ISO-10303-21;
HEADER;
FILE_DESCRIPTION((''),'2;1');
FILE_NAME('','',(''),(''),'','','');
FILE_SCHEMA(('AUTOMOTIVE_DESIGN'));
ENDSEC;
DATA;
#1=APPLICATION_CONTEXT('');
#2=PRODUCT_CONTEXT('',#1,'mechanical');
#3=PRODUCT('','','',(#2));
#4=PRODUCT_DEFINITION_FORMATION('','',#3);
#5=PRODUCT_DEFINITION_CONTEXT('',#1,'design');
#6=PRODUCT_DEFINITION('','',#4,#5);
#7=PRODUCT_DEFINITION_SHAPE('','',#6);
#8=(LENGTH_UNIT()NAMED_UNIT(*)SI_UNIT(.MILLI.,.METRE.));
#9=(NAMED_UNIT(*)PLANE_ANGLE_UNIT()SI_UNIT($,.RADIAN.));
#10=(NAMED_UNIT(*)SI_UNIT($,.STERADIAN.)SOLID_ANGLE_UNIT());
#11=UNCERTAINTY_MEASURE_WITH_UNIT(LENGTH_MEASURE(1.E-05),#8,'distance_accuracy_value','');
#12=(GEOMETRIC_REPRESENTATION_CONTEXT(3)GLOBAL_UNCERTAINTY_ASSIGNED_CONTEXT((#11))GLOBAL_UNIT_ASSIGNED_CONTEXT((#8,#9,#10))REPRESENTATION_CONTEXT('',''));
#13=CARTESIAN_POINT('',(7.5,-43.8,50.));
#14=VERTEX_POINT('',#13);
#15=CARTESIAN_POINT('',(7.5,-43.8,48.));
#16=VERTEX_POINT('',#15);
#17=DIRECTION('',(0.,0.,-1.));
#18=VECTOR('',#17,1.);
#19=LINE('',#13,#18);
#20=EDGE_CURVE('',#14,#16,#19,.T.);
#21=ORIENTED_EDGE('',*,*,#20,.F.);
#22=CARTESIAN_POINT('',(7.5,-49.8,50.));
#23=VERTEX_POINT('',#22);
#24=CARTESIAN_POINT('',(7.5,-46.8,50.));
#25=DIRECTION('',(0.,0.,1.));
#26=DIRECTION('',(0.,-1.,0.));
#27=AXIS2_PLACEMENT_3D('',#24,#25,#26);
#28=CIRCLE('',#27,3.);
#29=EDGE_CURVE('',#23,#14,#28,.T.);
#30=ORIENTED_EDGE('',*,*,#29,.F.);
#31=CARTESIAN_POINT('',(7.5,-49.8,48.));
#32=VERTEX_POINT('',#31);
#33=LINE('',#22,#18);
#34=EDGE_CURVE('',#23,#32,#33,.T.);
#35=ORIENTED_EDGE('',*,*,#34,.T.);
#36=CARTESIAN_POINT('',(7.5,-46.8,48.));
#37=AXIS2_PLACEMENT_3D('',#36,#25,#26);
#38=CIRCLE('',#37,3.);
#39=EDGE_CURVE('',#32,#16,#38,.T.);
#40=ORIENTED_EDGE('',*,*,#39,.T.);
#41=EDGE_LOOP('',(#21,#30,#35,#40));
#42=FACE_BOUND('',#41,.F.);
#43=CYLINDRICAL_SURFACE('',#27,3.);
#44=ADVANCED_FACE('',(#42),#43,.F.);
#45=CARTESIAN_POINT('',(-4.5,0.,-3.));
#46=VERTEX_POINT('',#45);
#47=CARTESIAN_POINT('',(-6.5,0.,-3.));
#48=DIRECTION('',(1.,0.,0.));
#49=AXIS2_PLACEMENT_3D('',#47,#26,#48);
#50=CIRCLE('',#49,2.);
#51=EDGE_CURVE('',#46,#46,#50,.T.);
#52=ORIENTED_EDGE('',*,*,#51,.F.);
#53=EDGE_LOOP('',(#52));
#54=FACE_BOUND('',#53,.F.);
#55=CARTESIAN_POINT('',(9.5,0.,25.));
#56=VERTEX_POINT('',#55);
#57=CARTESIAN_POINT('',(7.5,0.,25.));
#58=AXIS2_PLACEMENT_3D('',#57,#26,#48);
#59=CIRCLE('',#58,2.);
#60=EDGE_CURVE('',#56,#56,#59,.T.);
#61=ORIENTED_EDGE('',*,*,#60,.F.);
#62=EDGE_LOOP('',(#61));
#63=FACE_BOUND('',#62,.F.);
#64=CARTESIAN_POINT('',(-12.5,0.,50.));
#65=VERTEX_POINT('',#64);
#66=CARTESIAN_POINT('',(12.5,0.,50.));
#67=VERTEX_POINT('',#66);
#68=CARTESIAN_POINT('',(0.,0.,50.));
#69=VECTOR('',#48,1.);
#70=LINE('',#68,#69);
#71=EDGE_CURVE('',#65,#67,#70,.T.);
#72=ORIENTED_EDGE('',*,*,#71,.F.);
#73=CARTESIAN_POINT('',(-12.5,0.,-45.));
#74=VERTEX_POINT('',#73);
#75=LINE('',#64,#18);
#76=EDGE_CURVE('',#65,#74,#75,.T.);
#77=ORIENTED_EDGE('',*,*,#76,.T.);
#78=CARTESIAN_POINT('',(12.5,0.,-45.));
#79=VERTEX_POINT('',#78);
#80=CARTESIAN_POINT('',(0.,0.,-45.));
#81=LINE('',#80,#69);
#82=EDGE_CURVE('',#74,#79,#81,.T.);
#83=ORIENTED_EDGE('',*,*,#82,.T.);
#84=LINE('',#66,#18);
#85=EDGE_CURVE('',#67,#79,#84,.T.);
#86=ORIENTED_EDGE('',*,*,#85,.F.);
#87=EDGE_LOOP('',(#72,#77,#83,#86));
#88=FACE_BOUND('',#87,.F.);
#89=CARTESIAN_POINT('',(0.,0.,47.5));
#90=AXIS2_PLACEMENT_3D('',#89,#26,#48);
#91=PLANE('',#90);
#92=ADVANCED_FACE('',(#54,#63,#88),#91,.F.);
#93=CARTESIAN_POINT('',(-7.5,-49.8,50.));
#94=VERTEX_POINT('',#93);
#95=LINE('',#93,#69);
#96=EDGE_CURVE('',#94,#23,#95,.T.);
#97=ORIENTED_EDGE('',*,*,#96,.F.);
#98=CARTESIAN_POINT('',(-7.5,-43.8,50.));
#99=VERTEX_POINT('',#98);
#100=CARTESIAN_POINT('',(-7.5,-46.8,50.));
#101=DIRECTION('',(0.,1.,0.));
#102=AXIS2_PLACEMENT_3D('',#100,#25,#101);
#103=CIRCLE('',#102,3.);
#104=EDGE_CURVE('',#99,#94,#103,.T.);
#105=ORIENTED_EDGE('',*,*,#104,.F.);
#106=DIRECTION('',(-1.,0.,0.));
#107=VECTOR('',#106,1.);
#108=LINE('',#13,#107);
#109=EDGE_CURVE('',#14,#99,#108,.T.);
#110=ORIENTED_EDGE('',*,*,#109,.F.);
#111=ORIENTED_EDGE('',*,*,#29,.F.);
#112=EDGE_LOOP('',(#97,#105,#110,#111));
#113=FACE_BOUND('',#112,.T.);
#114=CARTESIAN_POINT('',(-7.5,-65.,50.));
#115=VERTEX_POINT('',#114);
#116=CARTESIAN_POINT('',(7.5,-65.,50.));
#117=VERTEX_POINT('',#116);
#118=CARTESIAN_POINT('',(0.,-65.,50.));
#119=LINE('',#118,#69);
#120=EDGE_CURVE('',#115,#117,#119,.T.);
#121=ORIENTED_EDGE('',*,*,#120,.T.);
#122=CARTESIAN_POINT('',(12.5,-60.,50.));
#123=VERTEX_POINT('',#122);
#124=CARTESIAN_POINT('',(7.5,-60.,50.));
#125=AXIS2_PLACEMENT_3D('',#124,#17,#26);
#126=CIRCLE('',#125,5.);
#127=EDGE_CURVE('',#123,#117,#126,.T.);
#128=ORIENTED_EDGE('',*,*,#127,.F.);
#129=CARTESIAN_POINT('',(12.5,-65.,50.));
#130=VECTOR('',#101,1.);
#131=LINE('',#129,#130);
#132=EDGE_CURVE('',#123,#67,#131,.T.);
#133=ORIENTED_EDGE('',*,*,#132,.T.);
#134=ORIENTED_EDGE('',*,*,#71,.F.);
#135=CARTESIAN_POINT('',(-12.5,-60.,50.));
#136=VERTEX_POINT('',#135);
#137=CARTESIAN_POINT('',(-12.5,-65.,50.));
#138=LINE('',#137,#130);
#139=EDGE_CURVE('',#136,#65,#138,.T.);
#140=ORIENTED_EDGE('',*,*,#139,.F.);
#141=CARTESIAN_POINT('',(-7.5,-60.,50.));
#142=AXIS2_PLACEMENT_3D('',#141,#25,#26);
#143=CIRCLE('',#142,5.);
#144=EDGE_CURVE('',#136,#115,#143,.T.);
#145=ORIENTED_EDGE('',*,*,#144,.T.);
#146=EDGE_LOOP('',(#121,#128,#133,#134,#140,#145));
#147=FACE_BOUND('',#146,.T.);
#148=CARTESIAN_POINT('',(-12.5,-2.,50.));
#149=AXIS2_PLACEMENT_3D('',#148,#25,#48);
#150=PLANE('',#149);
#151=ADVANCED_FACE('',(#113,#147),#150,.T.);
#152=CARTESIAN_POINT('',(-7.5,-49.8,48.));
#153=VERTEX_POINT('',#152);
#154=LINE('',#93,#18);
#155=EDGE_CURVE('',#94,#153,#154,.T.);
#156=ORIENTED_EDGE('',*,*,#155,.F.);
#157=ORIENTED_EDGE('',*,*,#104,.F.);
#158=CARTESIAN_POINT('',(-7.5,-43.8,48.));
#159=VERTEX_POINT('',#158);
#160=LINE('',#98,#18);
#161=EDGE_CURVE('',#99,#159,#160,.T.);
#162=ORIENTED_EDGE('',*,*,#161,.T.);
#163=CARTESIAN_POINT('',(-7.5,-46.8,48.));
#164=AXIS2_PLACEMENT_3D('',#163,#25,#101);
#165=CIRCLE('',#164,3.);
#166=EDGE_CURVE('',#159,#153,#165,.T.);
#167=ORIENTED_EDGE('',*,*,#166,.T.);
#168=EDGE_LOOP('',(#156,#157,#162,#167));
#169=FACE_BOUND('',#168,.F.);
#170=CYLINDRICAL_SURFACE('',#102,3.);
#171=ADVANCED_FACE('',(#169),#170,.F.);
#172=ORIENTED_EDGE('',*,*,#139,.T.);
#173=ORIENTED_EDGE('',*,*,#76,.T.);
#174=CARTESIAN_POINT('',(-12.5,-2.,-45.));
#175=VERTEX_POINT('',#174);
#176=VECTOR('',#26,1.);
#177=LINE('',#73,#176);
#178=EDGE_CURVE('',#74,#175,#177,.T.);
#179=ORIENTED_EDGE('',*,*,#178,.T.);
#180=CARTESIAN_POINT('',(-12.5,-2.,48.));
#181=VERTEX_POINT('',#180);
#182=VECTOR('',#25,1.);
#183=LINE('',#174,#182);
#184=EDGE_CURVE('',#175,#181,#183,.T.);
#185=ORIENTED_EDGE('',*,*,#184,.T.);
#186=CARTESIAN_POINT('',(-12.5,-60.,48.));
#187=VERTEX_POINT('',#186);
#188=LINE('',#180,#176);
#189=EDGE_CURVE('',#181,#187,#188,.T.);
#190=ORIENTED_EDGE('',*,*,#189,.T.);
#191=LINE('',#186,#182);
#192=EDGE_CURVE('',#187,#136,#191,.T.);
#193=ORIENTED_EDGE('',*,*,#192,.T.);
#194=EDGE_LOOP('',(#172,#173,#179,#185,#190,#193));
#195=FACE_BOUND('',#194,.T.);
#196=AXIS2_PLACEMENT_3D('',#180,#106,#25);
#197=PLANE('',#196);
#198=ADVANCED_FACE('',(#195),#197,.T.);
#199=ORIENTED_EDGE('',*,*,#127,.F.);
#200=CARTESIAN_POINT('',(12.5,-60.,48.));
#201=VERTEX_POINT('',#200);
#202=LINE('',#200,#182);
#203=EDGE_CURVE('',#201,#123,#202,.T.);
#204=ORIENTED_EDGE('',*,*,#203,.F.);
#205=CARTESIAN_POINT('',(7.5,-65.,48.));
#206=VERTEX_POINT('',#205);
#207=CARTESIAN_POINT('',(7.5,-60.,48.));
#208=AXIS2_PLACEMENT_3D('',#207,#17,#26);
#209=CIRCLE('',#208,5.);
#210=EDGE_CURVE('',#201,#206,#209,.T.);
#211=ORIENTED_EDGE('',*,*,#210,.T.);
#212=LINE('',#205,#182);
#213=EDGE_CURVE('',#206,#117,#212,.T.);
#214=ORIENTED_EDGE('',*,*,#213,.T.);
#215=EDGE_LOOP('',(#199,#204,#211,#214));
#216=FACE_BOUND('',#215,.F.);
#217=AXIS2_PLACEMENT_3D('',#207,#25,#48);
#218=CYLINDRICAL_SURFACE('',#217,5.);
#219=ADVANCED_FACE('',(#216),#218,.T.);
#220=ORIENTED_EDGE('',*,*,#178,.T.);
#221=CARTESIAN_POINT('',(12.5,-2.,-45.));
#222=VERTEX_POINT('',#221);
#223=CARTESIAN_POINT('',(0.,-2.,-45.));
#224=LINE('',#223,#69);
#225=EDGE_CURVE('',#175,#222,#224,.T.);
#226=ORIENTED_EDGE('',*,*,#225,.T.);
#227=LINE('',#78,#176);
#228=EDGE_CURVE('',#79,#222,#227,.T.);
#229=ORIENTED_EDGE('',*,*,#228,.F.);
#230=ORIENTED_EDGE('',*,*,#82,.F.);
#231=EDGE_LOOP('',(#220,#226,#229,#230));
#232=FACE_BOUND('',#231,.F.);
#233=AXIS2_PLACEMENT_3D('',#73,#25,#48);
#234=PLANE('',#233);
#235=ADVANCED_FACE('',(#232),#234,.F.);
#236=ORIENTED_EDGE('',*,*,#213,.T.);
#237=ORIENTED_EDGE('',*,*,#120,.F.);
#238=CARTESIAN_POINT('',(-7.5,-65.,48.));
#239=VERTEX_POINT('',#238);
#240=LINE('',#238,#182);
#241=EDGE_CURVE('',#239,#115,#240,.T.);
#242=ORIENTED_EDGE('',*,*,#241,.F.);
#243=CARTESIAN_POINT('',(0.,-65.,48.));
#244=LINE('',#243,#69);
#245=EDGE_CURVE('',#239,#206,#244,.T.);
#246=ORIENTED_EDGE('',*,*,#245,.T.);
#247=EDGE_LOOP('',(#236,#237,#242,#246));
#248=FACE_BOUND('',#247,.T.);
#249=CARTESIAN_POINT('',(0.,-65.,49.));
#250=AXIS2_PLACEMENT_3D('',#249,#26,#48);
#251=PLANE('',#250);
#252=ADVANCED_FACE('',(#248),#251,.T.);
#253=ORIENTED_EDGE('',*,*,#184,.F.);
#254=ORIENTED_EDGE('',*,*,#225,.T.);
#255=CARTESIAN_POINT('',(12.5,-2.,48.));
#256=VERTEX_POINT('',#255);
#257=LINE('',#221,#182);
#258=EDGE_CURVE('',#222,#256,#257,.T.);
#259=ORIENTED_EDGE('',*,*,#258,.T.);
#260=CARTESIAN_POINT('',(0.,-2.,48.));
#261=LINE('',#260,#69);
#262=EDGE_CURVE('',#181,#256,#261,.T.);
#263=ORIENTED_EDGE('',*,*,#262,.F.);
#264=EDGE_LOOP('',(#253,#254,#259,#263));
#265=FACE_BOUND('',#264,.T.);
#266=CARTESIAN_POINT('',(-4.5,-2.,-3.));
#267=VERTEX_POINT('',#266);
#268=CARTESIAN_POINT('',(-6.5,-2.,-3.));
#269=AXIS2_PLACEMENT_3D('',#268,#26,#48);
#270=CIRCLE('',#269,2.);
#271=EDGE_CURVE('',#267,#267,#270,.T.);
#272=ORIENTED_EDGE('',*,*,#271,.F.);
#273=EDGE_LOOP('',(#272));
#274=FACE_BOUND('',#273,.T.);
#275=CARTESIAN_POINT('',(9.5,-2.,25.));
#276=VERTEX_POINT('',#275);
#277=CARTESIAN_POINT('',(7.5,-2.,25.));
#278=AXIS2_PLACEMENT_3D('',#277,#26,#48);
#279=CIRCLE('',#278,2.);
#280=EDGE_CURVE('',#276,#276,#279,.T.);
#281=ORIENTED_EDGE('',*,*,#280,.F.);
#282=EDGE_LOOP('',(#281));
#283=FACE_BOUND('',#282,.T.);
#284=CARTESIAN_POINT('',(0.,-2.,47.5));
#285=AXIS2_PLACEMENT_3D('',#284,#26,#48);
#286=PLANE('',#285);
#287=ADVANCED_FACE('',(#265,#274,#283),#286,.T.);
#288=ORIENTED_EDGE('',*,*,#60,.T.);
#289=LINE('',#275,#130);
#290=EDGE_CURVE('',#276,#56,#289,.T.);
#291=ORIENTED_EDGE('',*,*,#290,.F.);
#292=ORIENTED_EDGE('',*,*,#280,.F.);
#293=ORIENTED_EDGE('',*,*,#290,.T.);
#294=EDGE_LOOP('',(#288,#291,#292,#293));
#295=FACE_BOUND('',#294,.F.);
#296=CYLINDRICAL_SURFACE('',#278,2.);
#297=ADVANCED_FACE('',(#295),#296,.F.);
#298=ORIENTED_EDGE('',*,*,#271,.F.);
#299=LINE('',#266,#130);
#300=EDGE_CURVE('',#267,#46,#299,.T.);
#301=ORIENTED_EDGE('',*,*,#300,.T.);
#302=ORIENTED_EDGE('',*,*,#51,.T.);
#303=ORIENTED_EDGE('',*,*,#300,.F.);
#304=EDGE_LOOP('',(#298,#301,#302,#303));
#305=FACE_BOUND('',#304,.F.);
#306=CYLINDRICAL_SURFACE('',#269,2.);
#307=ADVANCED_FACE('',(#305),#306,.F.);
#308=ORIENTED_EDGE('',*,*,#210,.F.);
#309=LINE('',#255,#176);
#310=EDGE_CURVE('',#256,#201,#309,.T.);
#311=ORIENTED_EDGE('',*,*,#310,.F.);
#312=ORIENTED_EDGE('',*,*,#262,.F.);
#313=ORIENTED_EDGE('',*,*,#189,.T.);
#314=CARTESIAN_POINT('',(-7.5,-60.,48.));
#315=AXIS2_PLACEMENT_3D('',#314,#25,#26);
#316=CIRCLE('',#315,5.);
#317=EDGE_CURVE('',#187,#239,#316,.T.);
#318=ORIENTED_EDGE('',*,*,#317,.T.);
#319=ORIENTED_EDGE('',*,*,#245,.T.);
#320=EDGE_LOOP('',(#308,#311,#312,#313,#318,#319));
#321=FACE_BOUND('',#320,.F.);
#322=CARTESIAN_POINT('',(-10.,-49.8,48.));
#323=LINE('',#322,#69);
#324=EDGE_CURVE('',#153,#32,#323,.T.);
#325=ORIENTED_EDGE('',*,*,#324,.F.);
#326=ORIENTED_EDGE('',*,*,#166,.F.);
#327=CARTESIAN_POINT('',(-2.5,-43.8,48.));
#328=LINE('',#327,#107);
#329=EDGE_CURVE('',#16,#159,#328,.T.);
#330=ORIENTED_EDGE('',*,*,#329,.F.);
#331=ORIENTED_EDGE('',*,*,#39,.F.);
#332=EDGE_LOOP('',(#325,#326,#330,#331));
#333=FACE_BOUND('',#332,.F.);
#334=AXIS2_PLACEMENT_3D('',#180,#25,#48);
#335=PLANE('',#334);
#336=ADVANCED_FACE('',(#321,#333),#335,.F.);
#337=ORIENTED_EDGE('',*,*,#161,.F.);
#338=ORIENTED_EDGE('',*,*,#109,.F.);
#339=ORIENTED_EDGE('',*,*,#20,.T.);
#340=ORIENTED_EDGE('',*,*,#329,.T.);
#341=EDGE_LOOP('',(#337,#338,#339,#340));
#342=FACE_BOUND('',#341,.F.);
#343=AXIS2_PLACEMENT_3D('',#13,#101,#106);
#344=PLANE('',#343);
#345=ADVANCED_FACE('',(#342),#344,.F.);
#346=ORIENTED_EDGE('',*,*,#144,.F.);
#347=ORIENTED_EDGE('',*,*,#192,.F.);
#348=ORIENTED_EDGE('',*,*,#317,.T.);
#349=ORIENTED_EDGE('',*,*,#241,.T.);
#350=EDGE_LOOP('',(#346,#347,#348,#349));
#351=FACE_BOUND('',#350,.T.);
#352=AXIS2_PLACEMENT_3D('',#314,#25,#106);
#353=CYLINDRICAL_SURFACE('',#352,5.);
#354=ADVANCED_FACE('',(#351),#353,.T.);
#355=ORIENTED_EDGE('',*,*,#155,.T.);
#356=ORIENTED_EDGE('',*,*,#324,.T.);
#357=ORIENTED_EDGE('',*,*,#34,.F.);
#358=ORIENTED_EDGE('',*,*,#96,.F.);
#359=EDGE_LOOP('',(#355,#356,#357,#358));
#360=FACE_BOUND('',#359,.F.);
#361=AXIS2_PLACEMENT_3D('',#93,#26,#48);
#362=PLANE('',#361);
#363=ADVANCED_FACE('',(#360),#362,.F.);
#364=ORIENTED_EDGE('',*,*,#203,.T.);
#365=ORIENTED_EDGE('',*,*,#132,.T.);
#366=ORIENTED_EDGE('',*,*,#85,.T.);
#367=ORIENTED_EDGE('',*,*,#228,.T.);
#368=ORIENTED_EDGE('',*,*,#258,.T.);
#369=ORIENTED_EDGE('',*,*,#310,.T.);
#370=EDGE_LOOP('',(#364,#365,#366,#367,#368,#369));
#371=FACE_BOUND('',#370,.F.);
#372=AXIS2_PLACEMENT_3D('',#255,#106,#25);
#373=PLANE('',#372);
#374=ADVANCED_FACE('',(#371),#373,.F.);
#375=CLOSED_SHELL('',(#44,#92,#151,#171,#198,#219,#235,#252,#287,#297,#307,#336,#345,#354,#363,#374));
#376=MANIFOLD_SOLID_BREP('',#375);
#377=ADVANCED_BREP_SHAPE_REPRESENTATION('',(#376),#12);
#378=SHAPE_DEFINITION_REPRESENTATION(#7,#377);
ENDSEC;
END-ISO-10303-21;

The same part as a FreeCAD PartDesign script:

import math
import FreeCAD as App
import Part
import Sketcher

V = App.Vector


def edges_at(feature, points):
    """Names of the edges that pass closest to the given points."""
    edges = feature.Shape.Edges
    near = lambda p: min(range(len(edges)), key=lambda i: edges[i].distToShape(Part.Vertex(*p))[0])
    return sorted({f"Edge{near(p) + 1}" for p in points})

doc = App.newDocument("Part")
body = doc.addObject("PartDesign::Body", "Body")

# Sketch on XZ plane
sketch1 = doc.addObject("Sketcher::SketchObject", "Sketch")
body.addObject(sketch1)
sketch1.AttachmentSupport = (doc.XZ_Plane, [""])
sketch1.MapMode = "FlatFace"
sketch1.addGeometry([
    Part.LineSegment(V(-12.5, 45, 0), V(-12.5, -45, 0)),
    Part.LineSegment(V(-12.5, -45, 0), V(12.5, -45, 0)),
    Part.LineSegment(V(12.5, -45, 0), V(12.5, 45, 0)),
    Part.LineSegment(V(12.5, 45, 0), V(-12.5, 45, 0)),
], False)
sketch1.addConstraint([
    Sketcher.Constraint("Coincident", 0, 2, 1, 1),
    Sketcher.Constraint("Coincident", 1, 2, 2, 1),
    Sketcher.Constraint("Coincident", 2, 2, 3, 1),
    Sketcher.Constraint("Coincident", 3, 2, 0, 1),
    Sketcher.Constraint("Vertical", 0),
    Sketcher.Constraint("Horizontal", 1),
    Sketcher.Constraint("Vertical", 2),
    Sketcher.Constraint("Horizontal", 3),
    Sketcher.Constraint("Symmetric", 0, 2, 2, 2, -1, 1),
    Sketcher.Constraint("DistanceX", 1, 1, 1, 2, 25.0),
    Sketcher.Constraint("DistanceY", 0, 2, 0, 1, 90.0),
])
pad1 = doc.addObject("PartDesign::Pad", "Pad")
body.addObject(pad1)
pad1.Profile = sketch1
pad1.Length = 2

# Sketch on XZ plane
sketch2 = doc.addObject("Sketcher::SketchObject", "Sketch001")
body.addObject(sketch2)
sketch2.AttachmentSupport = (doc.XZ_Plane, [""])
sketch2.MapMode = "FlatFace"
sketch2.AttachmentOffset = App.Placement(V(0, 0, 2), App.Rotation())
sketch2.addGeometry([
    Part.Circle(V(7.5, 25, 0), V(0, 0, 1), 2),
    Part.Circle(V(-6.5, -3, 0), V(0, 0, 1), 2),
], False)
sketch2.addConstraint([
    Sketcher.Constraint("Equal", 0, 1),
    Sketcher.Constraint("Diameter", 0, 4.0),
    Sketcher.Constraint("DistanceY", -1, 1, 0, 3, 25.0),
    Sketcher.Constraint("DistanceY", 1, 3, -1, 1, 3.0),
    Sketcher.Constraint("DistanceX", 1, 3, 0, 3, 14.0),
    Sketcher.Constraint("DistanceX", -1, 1, 0, 3, 7.5),
])
pocket1 = doc.addObject("PartDesign::Pocket", "Pocket")
body.addObject(pocket1)
pocket1.Profile = sketch2
pocket1.Length = 25

# Sketch on XZ plane
sketch3 = doc.addObject("Sketcher::SketchObject", "Sketch002")
body.addObject(sketch3)
sketch3.AttachmentSupport = (doc.XZ_Plane, [""])
sketch3.MapMode = "FlatFace"
sketch3.AttachmentOffset = App.Placement(V(0, 0, 2), App.Rotation())
sketch3.addGeometry([
    Part.LineSegment(V(-12.5, 50, 0), V(-12.5, 45, 0)),
    Part.LineSegment(V(-12.5, 45, 0), V(12.5, 45, 0)),
    Part.LineSegment(V(12.5, 45, 0), V(12.5, 50, 0)),
    Part.LineSegment(V(12.5, 50, 0), V(-12.5, 50, 0)),
], False)
sketch3.addConstraint([
    Sketcher.Constraint("Coincident", 0, 2, 1, 1),
    Sketcher.Constraint("Coincident", 1, 2, 2, 1),
    Sketcher.Constraint("Coincident", 2, 2, 3, 1),
    Sketcher.Constraint("Coincident", 3, 2, 0, 1),
    Sketcher.Constraint("Vertical", 0),
    Sketcher.Constraint("Horizontal", 1),
    Sketcher.Constraint("Vertical", 2),
    Sketcher.Constraint("Horizontal", 3),
    Sketcher.Constraint("DistanceX", 1, 1, 1, 2, 25.0),
    Sketcher.Constraint("DistanceY", 0, 2, 0, 1, 5.0),
    Sketcher.Constraint("DistanceY", -1, 1, 0, 2, 45.0),
    Sketcher.Constraint("DistanceX", 0, 2, -1, 1, 12.5),
])
pad2 = doc.addObject("PartDesign::Pad", "Pad001")
body.addObject(pad2)
pad2.Profile = sketch3
pad2.Length = 2
pad2.Reversed = True

# Sketch on XZ plane
sketch4 = doc.addObject("Sketcher::SketchObject", "Sketch003")
body.addObject(sketch4)
sketch4.AttachmentSupport = (doc.XZ_Plane, [""])
sketch4.MapMode = "FlatFace"
sketch4.AttachmentOffset = App.Placement(V(0, 0, 2), App.Rotation())
sketch4.addGeometry([
    Part.LineSegment(V(-12.5, 50, 0), V(-12.5, 48, 0)),
    Part.LineSegment(V(-12.5, 48, 0), V(12.5, 48, 0)),
    Part.LineSegment(V(12.5, 48, 0), V(12.5, 50, 0)),
    Part.LineSegment(V(12.5, 50, 0), V(-12.5, 50, 0)),
], False)
sketch4.addConstraint([
    Sketcher.Constraint("Coincident", 0, 2, 1, 1),
    Sketcher.Constraint("Coincident", 1, 2, 2, 1),
    Sketcher.Constraint("Coincident", 2, 2, 3, 1),
    Sketcher.Constraint("Coincident", 3, 2, 0, 1),
    Sketcher.Constraint("Vertical", 0),
    Sketcher.Constraint("Horizontal", 1),
    Sketcher.Constraint("Vertical", 2),
    Sketcher.Constraint("Horizontal", 3),
    Sketcher.Constraint("DistanceX", 1, 1, 1, 2, 25.0),
    Sketcher.Constraint("DistanceY", 0, 2, 0, 1, 2.0),
    Sketcher.Constraint("DistanceY", -1, 1, 0, 2, 48.0),
    Sketcher.Constraint("DistanceX", 0, 2, -1, 1, 12.5),
])
pad3 = doc.addObject("PartDesign::Pad", "Pad002")
body.addObject(pad3)
pad3.Profile = sketch4
pad3.Length = 63
doc.recompute()

fillet = doc.addObject("PartDesign::Fillet", "Fillet")
body.addObject(fillet)
fillet.Base = (pad3, edges_at(pad3, [(-12.5, -65, 49), (12.5, -65, 49)]))
fillet.Radius = 5

# Sketch on XY plane
sketch5 = doc.addObject("Sketcher::SketchObject", "Sketch004")
body.addObject(sketch5)
sketch5.AttachmentSupport = (doc.XY_Plane, [""])
sketch5.MapMode = "FlatFace"
sketch5.AttachmentOffset = App.Placement(V(0, 0, 50), App.Rotation())
sketch5.addGeometry([
    Part.LineSegment(V(-7.5, -49.8, 0), V(7.5, -49.8, 0)),
    Part.ArcOfCircle(Part.Circle(V(7.5, -46.8, 0), V(0, 0, 1), 3), math.radians(-90), math.radians(90)),
    Part.LineSegment(V(7.5, -43.8, 0), V(-7.5, -43.8, 0)),
    Part.ArcOfCircle(Part.Circle(V(-7.5, -46.8, 0), V(0, 0, 1), 3), math.radians(90), math.radians(270)),
], False)
sketch5.addConstraint([
    Sketcher.Constraint("Tangent", 0, 2, 1, 1),
    Sketcher.Constraint("Tangent", 1, 2, 2, 1),
    Sketcher.Constraint("Tangent", 2, 2, 3, 1),
    Sketcher.Constraint("Tangent", 3, 2, 0, 1),
    Sketcher.Constraint("Horizontal", 0),
    Sketcher.Constraint("Horizontal", 2),
    Sketcher.Constraint("Radius", 1, 3.0),
    Sketcher.Constraint("DistanceX", 0, 1, 0, 2, 15.0),
    Sketcher.Constraint("DistanceX", -1, 1, 1, 3, 7.5),
    Sketcher.Constraint("DistanceY", 1, 3, -1, 1, 46.8),
])
pocket2 = doc.addObject("PartDesign::Pocket", "Pocket001")
body.addObject(pocket2)
pocket2.Profile = sketch5
pocket2.Length = 25

doc.recompute()
